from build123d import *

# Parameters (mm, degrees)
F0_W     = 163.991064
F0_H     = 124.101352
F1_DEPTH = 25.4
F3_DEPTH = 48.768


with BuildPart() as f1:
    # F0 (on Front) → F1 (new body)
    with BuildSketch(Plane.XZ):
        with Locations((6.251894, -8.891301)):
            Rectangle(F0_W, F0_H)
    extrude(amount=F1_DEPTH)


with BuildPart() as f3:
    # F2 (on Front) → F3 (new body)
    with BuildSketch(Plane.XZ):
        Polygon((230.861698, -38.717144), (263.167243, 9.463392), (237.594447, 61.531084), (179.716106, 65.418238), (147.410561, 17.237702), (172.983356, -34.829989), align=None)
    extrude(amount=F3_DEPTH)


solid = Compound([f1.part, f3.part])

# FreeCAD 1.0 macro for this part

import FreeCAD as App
import Part
import Sketcher
from FreeCAD import Vector
Q = App.Units.Quantity


def add_polygon(sketch, points):
    """Adds a closed chain of lines whose ends are joined by coincident constraints."""
    first, n = sketch.GeometryCount, len(points)
    for a, b in zip(points, points[1:] + points[:1]):
        sketch.addGeometry(Part.LineSegment(App.Vector(*a, 0), App.Vector(*b, 0)), False)
    for i in range(n):
        sketch.addConstraint(Sketcher.Constraint("Coincident", first + i, 2, first + (i + 1) % n, 1))

doc = App.newDocument("Part")
body = doc.addObject("PartDesign::Body", "Body")

sketch1 = body.newObject("Sketcher::SketchObject", "Sketch")
sketch1.AttachmentSupport = (doc.getObject("XZ_Plane"), [""])
sketch1.MapMode = "FlatFace"
add_polygon(sketch1, [(-75.743638, 53.159375), (-75.743638, -70.941977), (88.247426, -70.941977), (88.247426, 53.159375)])
sketch1.addConstraint(Sketcher.Constraint("Vertical", 0))
sketch1.addConstraint(Sketcher.Constraint("Horizontal", 1))
sketch1.addConstraint(Sketcher.Constraint("Vertical", 2))
sketch1.addConstraint(Sketcher.Constraint("Horizontal", 3))
sketch1.addConstraint(Sketcher.Constraint("DistanceY", 0, 2, 0, 1, Q("124.101352 mm")))
sketch1.addConstraint(Sketcher.Constraint("DistanceX", 1, 1, 1, 2, Q("163.991064 mm")))
sketch1.addConstraint(Sketcher.Constraint("DistanceX", 0, 2, -1, 1, Q("75.743638 mm")))
sketch1.addConstraint(Sketcher.Constraint("DistanceY", 0, 2, -1, 1, Q("70.941977 mm")))
pad1 = body.newObject("PartDesign::Pad", "Pad")
pad1.Profile = sketch1
pad1.Length = Q("1 in")
body2 = doc.addObject("PartDesign::Body", "Body001")

sketch2 = body2.newObject("Sketcher::SketchObject", "Sketch001")
sketch2.AttachmentSupport = (doc.getObject("XZ_Plane001"), [""])
sketch2.MapMode = "FlatFace"
add_polygon(sketch2, [(230.861698, -38.717144), (263.167243, 9.463392), (237.594447, 61.531084), (179.716106, 65.418238), (147.410561, 17.237702), (172.983356, -34.829989)])
sketch2.addConstraint(Sketcher.Constraint("Parallel", 0, 3))
sketch2.addConstraint(Sketcher.Constraint("Parallel", 1, 4))
sketch2.addConstraint(Sketcher.Constraint("Parallel", 2, 5))
sketch2.addConstraint(Sketcher.Constraint("Equal", 0, 1))
sketch2.addConstraint(Sketcher.Constraint("Equal", 1, 2))
sketch2.addConstraint(Sketcher.Constraint("Equal", 2, 3))
sketch2.addConstraint(Sketcher.Constraint("DistanceY", -1, 1, 3, 2, Q("17.237702 mm")))
sketch2.addConstraint(Sketcher.Constraint("DistanceY", -1, 1, 2, 2, Q("65.418238 mm")))
sketch2.addConstraint(Sketcher.Constraint("DistanceX", -1, 1, 3, 2, Q("147.410561 mm")))
sketch2.addConstraint(Sketcher.Constraint("DistanceY", 4, 2, -1, 1, Q("34.829989 mm")))
sketch2.addConstraint(Sketcher.Constraint("DistanceX", 2, 2, 1, 2, Q("57.878341 mm")))
sketch2.addConstraint(Sketcher.Constraint("DistanceX", 3, 2, 0, 2, Q("115.756682 mm")))
pad2 = body2.newObject("PartDesign::Pad", "Pad001")
pad2.Profile = sketch2
pad2.Length = Q("1.92 in")

doc.recompute()
